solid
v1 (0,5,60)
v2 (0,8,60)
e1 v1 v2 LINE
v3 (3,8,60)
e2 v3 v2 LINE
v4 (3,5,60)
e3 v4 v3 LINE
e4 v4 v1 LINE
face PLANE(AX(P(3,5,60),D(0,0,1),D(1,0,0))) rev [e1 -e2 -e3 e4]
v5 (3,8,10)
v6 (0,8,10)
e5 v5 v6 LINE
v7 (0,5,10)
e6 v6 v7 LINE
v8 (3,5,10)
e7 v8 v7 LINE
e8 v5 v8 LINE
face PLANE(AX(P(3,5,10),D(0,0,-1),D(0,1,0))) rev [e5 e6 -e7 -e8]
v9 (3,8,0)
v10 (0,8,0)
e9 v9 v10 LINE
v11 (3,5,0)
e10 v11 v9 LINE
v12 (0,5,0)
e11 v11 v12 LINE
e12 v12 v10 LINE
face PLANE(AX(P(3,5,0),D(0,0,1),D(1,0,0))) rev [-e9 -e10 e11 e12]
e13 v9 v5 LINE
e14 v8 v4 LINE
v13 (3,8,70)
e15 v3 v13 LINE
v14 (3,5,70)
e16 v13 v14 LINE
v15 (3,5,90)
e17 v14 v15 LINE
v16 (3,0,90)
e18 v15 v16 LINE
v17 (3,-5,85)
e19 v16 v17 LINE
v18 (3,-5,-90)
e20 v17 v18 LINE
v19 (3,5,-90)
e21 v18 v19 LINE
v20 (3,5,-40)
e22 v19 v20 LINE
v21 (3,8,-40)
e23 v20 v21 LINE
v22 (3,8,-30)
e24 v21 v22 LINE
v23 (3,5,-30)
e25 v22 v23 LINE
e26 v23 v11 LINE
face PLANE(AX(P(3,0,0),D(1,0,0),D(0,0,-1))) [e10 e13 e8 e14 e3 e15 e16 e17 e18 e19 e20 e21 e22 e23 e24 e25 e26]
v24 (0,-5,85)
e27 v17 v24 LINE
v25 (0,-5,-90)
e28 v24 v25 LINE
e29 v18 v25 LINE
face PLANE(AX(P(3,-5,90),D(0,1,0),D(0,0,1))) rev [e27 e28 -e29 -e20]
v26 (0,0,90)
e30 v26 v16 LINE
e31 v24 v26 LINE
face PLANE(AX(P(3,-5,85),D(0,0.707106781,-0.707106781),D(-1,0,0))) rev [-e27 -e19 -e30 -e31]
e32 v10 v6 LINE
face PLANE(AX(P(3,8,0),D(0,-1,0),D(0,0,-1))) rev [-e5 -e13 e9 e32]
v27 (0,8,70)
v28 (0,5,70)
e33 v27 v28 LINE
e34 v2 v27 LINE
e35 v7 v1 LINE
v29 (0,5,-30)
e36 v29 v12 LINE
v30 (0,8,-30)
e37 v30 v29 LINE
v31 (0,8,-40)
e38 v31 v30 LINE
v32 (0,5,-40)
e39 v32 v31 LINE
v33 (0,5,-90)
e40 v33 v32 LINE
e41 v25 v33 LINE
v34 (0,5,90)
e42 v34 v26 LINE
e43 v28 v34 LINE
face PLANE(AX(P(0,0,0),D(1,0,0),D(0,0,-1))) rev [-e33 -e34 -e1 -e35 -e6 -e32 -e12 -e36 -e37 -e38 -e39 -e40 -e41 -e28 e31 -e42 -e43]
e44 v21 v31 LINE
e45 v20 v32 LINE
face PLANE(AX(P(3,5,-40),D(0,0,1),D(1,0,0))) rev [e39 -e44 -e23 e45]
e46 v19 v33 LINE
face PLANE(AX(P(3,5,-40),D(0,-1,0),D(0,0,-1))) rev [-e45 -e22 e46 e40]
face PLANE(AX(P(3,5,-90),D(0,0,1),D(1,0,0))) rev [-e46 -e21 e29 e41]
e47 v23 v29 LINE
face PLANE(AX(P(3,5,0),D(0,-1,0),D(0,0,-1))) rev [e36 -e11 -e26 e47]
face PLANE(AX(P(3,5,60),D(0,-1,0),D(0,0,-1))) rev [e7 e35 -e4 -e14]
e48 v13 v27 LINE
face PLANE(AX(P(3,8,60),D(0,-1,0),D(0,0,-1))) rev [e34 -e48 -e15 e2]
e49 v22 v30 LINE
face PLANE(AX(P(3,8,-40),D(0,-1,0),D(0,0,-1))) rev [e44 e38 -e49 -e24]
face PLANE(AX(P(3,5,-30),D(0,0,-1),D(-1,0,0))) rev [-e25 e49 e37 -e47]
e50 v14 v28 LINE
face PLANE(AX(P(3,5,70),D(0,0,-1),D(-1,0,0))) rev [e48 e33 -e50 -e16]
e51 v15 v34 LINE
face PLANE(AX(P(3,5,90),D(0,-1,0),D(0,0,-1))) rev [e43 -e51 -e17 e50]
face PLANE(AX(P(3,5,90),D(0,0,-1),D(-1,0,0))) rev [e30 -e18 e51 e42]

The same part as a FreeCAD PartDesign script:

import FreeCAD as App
import Part
import Sketcher

V = App.Vector
Q = App.Units.Quantity


def edges_at(feature, points):
    """Names of the edges that pass closest to the given points."""
    edges = feature.Shape.Edges
    near = lambda p: min(range(len(edges)), key=lambda i: edges[i].distToShape(Part.Vertex(*p))[0])
    return sorted({f"Edge{near(p) + 1}" for p in points})

doc = App.newDocument("Part")
body = doc.addObject("PartDesign::Body", "Body")

sketch1 = body.newObject("Sketcher::SketchObject", "Sketch")
sketch1.AttachmentSupport = (doc.getObject("YZ_Plane"), [""])
sketch1.MapMode = "FlatFace"
sketch1.addGeometry(Part.LineSegment(V(5, 10, 0), V(5, 60, 0)), False)
sketch1.addGeometry(Part.LineSegment(V(5, 60, 0), V(8, 60, 0)), False)
sketch1.addGeometry(Part.LineSegment(V(8, 60, 0), V(8, 70, 0)), False)
sketch1.addGeometry(Part.LineSegment(V(8, 70, 0), V(5, 70, 0)), False)
sketch1.addGeometry(Part.LineSegment(V(5, 70, 0), V(5, 90, 0)), False)
sketch1.addGeometry(Part.LineSegment(V(5, 90, 0), V(-5, 90, 0)), False)
sketch1.addGeometry(Part.LineSegment(V(-5, 90, 0), V(-5, -90, 0)), False)
sketch1.addGeometry(Part.LineSegment(V(-5, -90, 0), V(5, -90, 0)), False)
sketch1.addGeometry(Part.LineSegment(V(5, -90, 0), V(5, -40, 0)), False)
sketch1.addGeometry(Part.LineSegment(V(5, -40, 0), V(8, -40, 0)), False)
sketch1.addGeometry(Part.LineSegment(V(8, -40, 0), V(8, -30, 0)), False)
sketch1.addGeometry(Part.LineSegment(V(8, -30, 0), V(5, -30, 0)), False)
sketch1.addGeometry(Part.LineSegment(V(5, -30, 0), V(5, 0, 0)), False)
sketch1.addGeometry(Part.LineSegment(V(5, 0, 0), V(8, 0, 0)), False)
sketch1.addGeometry(Part.LineSegment(V(8, 0, 0), V(8, 10, 0)), False)
sketch1.addGeometry(Part.LineSegment(V(8, 10, 0), V(5, 10, 0)), False)
sketch1.addConstraint(Sketcher.Constraint("Coincident", 0, 2, 1, 1))
sketch1.addConstraint(Sketcher.Constraint("Coincident", 1, 2, 2, 1))
sketch1.addConstraint(Sketcher.Constraint("Coincident", 2, 2, 3, 1))
sketch1.addConstraint(Sketcher.Constraint("Coincident", 3, 2, 4, 1))
sketch1.addConstraint(Sketcher.Constraint("Coincident", 4, 2, 5, 1))
sketch1.addConstraint(Sketcher.Constraint("Coincident", 5, 2, 6, 1))
sketch1.addConstraint(Sketcher.Constraint("Coincident", 6, 2, 7, 1))
sketch1.addConstraint(Sketcher.Constraint("Coincident", 7, 2, 8, 1))
sketch1.addConstraint(Sketcher.Constraint("Coincident", 8, 2, 9, 1))
sketch1.addConstraint(Sketcher.Constraint("Coincident", 9, 2, 10, 1))
sketch1.addConstraint(Sketcher.Constraint("Coincident", 10, 2, 11, 1))
sketch1.addConstraint(Sketcher.Constraint("Coincident", 11, 2, 12, 1))
sketch1.addConstraint(Sketcher.Constraint("Coincident", 12, 2, 13, 1))
sketch1.addConstraint(Sketcher.Constraint("Coincident", 13, 2, 14, 1))
sketch1.addConstraint(Sketcher.Constraint("Coincident", 14, 2, 15, 1))
sketch1.addConstraint(Sketcher.Constraint("Coincident", 15, 2, 0, 1))
sketch1.addConstraint(Sketcher.Constraint("Vertical", 0))
sketch1.addConstraint(Sketcher.Constraint("Horizontal", 1))
sketch1.addConstraint(Sketcher.Constraint("Vertical", 2))
sketch1.addConstraint(Sketcher.Constraint("Horizontal", 3))
sketch1.addConstraint(Sketcher.Constraint("Vertical", 4))
sketch1.addConstraint(Sketcher.Constraint("Horizontal", 5))
sketch1.addConstraint(Sketcher.Constraint("Vertical", 6))
sketch1.addConstraint(Sketcher.Constraint("Horizontal", 7))
sketch1.addConstraint(Sketcher.Constraint("Vertical", 8))
sketch1.addConstraint(Sketcher.Constraint("Horizontal", 9))
sketch1.addConstraint(Sketcher.Constraint("Vertical", 10))
sketch1.addConstraint(Sketcher.Constraint("Horizontal", 11))
sketch1.addConstraint(Sketcher.Constraint("Vertical", 12))
sketch1.addConstraint(Sketcher.Constraint("Horizontal", 13))
sketch1.addConstraint(Sketcher.Constraint("Vertical", 14))
sketch1.addConstraint(Sketcher.Constraint("Horizontal", 15))
sketch1.addConstraint(Sketcher.Constraint("Symmetric", 4, 2, 6, 2, -1, 1))
sketch1.addConstraint(Sketcher.Constraint("PointOnObject", 12, 2, -1))
sketch1.addConstraint(Sketcher.Constraint("Vertical", 0, 2, 3, 2))
sketch1.addConstraint(Sketcher.Constraint("Vertical", 4, 2, 7, 2))
sketch1.addConstraint(Sketcher.Constraint("Vertical", 2, 2, 9, 2))
sketch1.addConstraint(Sketcher.Constraint("Vertical", 8, 2, 11, 2))
sketch1.addConstraint(Sketcher.Constraint("Vertical", 10, 2, 13, 2))
sketch1.addConstraint(Sketcher.Constraint("Equal", 7, 2))
sketch1.addConstraint(Sketcher.Constraint("Equal", 0, 8))
sketch1.addConstraint(Sketcher.Constraint("Equal", 2, 10))
sketch1.addConstraint(Sketcher.Constraint("Equal", 10, 14))
sketch1.addConstraint(Sketcher.Constraint("DistanceX", 1, 1, 1, 2, Q("3 mm")))
sketch1.addConstraint(Sketcher.Constraint("DistanceX", 5, 2, 5, 1, Q("10 mm")))
sketch1.addConstraint(Sketcher.Constraint("DistanceY", 0, 1, 0, 2, Q("50 mm")))
sketch1.addConstraint(Sketcher.Constraint("DistanceY", 4, 1, 4, 2, Q("20 mm")))
pad1 = body.newObject("PartDesign::Pad", "Pad")
pad1.Profile = sketch1
pad1.Length = 3
doc.recompute()

chamfer = body.newObject("PartDesign::Chamfer", "Chamfer")
chamfer.Base = (pad1, edges_at(pad1, [(1.5, -5, 90)]))
chamfer.Size = 5

doc.recompute()
